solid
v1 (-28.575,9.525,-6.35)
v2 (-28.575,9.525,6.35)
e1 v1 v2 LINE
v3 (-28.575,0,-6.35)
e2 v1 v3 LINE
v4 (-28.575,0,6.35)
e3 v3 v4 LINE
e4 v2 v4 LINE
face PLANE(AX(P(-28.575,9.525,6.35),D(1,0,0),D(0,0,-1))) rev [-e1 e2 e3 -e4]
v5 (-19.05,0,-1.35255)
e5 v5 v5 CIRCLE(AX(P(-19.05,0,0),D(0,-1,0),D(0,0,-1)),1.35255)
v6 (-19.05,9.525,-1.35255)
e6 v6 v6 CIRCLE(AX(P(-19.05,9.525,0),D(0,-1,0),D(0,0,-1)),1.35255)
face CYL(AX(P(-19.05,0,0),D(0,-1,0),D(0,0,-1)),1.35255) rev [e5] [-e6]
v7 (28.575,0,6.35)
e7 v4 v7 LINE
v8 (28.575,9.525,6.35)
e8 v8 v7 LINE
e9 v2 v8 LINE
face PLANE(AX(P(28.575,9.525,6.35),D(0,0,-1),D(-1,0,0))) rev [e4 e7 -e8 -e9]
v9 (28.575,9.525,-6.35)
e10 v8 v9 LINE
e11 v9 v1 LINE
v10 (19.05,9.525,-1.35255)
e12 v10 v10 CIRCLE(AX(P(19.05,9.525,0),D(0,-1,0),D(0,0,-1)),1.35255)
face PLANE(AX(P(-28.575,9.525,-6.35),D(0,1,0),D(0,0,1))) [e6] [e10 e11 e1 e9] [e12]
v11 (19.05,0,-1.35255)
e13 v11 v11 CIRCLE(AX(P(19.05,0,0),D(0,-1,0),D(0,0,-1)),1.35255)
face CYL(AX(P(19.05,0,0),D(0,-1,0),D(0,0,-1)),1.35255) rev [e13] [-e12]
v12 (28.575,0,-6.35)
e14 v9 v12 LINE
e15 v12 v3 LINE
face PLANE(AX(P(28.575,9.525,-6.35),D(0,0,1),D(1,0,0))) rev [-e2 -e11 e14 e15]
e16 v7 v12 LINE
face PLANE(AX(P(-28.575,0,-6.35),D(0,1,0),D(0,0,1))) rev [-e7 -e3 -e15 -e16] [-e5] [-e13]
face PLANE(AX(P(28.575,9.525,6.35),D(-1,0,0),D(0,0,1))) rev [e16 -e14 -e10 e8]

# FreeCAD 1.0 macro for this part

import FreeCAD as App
import Part
import Sketcher
from FreeCAD import Vector
Q = App.Units.Quantity

doc = App.newDocument("Part")
params = doc.addObject("Spreadsheet::Sheet", "Params")
for row, (alias, value) in enumerate([
    ("sketch1_height", "0.5 in"),
    ("sketch1_width", "2.25 in"),
    ("pad1_length", "0.375 in"),
    ("hole_diameter", "0.1065 in"),
], start=1):
    params.set(f"A{row}", alias)
    params.set(f"B{row}", "=" + value)
    params.setAlias(f"B{row}", alias)

body = doc.addObject("PartDesign::Body", "Body")

# Sketch on XZ plane
sketch1 = body.newObject("Sketcher::SketchObject", "Sketch")
sketch1.AttachmentSupport = (doc.getObject("XZ_Plane"), [""])
sketch1.MapMode = "FlatFace"
sketch1.addGeometry([
    Part.LineSegment(Vector(-28.575, -6.35, 0), Vector(-28.575, 6.35, 0)),
    Part.LineSegment(Vector(-28.575, 6.35, 0), Vector(28.575, 6.35, 0)),
    Part.LineSegment(Vector(28.575, 6.35, 0), Vector(28.575, -6.35, 0)),
    Part.LineSegment(Vector(28.575, -6.35, 0), Vector(-28.575, -6.35, 0)),
], False)
sketch1.addConstraint([
    Sketcher.Constraint("Coincident", 0, 2, 1, 1),
    Sketcher.Constraint("Coincident", 1, 2, 2, 1),
    Sketcher.Constraint("Coincident", 2, 2, 3, 1),
    Sketcher.Constraint("Coincident", 3, 2, 0, 1),
    Sketcher.Constraint("Vertical", 0),
    Sketcher.Constraint("Horizontal", 1),
    Sketcher.Constraint("Vertical", 2),
    Sketcher.Constraint("Horizontal", 3),
    Sketcher.Constraint("Symmetric", 0, 2, 2, 2, -1, 1),
    Sketcher.Constraint("DistanceY", 0, 1, 0, 2, Q("0.5 in")),
    Sketcher.Constraint("DistanceX", 1, 1, 1, 2, Q("2.25 in")),
])
sketch1.setExpression("Constraints[9]", "Params.sketch1_height")
sketch1.setExpression("Constraints[10]", "Params.sketch1_width")
pad1 = body.newObject("PartDesign::Pad", "Pad")
pad1.Profile = sketch1
pad1.setExpression("Length", "Params.pad1_length")
pad1.Reversed = True

# Sketch on XZ plane
sketch2 = body.newObject("Sketcher::SketchObject", "Sketch001")
sketch2.AttachmentSupport = (doc.getObject("XZ_Plane"), [""])
sketch2.MapMode = "FlatFace"
sketch2.addGeometry([
    Part.Circle(Vector(19.05, 0, 0), Vector(0, 0, 1), 1.35255),
    Part.Circle(Vector(-19.05, 0, 0), Vector(0, 0, 1), 1.35255),
], False)
sketch2.addConstraint([
    Sketcher.Constraint("Equal", 0, 1),
    Sketcher.Constraint("Symmetric", 0, 3, 1, 3, -1, 1),
    Sketcher.Constraint("PointOnObject", 0, 3, -1),
    Sketcher.Constraint("Diameter", 0, Q("0.1065 in")),
    Sketcher.Constraint("DistanceX", 1, 3, 0, 3, Q("1.5 in")),
])
doc.recompute()
hole = body.newObject("PartDesign::Hole", "Hole")
hole.Profile = sketch2
hole.ThreadType = "None"
hole.setExpression("Diameter", "Params.hole_diameter")
hole.DepthType = "ThroughAll"

doc.recompute()
